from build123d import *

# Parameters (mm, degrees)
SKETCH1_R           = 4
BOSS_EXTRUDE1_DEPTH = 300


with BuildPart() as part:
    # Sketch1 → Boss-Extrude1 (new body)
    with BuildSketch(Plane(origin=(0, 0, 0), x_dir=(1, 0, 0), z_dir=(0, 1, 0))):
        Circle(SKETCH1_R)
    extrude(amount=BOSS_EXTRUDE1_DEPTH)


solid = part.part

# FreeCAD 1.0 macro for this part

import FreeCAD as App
import Part
import Sketcher

V = App.Vector

doc = App.newDocument("Part")
body = doc.addObject("PartDesign::Body", "Body")

sketch1 = body.newObject("Sketcher::SketchObject", "Sketch")
sketch1.AttachmentSupport = (doc.getObject("XZ_Plane"), [""])
sketch1.MapMode = "FlatFace"
sketch1.addGeometry(Part.Circle(V(0, 0, 0), V(0, 0, 1), 4), False)
sketch1.addConstraint([
    Sketcher.Constraint("Coincident", 0, 3, -1, 1),
    Sketcher.Constraint("Diameter", 0, 8.0),
])
pad1 = body.newObject("PartDesign::Pad", "Pad")
pad1.Profile = sketch1
pad1.Length = 300
pad1.Reversed = True

doc.recompute()
